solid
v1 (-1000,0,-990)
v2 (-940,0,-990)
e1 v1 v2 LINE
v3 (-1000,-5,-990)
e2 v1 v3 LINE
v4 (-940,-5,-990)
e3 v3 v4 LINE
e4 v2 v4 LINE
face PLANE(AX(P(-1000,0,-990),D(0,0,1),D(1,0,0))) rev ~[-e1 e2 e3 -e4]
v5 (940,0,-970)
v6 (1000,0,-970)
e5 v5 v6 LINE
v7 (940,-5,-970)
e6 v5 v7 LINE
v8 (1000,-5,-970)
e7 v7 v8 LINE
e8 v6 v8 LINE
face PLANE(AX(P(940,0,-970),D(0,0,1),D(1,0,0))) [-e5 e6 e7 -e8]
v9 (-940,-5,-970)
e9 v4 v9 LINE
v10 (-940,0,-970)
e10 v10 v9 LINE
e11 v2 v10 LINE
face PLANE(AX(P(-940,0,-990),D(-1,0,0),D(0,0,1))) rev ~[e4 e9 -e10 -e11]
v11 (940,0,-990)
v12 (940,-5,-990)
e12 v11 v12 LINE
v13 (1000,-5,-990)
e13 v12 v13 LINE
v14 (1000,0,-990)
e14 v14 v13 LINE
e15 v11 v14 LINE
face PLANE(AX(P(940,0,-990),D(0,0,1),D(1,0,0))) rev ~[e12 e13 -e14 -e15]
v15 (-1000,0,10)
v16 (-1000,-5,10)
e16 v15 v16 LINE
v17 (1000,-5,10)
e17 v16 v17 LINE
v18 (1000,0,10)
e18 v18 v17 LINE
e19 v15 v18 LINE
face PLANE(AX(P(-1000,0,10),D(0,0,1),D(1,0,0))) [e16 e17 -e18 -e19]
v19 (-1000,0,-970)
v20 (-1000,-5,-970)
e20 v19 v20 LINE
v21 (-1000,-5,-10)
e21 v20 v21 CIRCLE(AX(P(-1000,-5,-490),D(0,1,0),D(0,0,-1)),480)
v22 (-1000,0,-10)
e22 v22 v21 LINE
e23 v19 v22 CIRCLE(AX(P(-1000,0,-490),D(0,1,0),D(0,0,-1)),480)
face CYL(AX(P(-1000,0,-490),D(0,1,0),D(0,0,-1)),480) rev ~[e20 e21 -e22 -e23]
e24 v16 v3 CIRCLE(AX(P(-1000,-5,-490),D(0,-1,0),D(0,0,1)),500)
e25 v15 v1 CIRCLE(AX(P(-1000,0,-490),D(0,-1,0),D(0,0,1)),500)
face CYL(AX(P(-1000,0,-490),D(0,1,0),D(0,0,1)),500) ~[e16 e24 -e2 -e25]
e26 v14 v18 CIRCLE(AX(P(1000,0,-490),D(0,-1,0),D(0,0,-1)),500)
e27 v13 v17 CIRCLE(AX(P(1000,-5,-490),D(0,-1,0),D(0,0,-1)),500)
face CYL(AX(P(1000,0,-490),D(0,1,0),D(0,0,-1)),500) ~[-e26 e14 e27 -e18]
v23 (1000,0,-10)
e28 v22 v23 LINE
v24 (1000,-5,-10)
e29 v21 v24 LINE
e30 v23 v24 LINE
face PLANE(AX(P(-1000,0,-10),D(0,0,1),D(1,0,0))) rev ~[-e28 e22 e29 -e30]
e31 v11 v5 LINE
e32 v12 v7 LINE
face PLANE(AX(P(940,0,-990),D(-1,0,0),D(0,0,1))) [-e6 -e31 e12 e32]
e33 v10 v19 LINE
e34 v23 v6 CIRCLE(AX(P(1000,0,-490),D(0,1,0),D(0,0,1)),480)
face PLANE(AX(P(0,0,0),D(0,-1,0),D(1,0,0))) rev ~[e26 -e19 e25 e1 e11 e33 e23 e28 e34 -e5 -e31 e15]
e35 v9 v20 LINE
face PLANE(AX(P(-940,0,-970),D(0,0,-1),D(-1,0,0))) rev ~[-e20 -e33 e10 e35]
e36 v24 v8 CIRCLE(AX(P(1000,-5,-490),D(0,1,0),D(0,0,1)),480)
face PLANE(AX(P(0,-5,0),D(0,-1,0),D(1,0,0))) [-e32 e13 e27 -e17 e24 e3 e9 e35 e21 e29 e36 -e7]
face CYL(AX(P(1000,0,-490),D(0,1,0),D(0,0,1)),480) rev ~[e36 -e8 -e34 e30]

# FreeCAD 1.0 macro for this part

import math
import FreeCAD as App
import Part
import Sketcher

V = App.Vector
Q = App.Units.Quantity

doc = App.newDocument("Part")
body = doc.addObject("PartDesign::Body", "Body")

# Sketch on XZ plane
sketch1 = doc.addObject("Sketcher::SketchObject", "Sketch")
body.addObject(sketch1)
sketch1.AttachmentSupport = (doc.XZ_Plane, [""])
sketch1.MapMode = "FlatFace"
sketch1.addGeometry([
    Part.LineSegment(V(-1000, -10, 0), V(1000, -10, 0)),  # 0
    Part.ArcOfCircle(Part.Circle(V(1000, -490, 0), V(0, 0, 1), 480), math.radians(-90), math.radians(90)),  # 1
    Part.LineSegment(V(1000, -970, 0), V(940, -970, 0)),  # 2
    Part.LineSegment(V(940, -970, 0), V(940, -990, 0)),  # 3
    Part.LineSegment(V(940, -990, 0), V(1000, -990, 0)),  # 4
    Part.ArcOfCircle(Part.Circle(V(1000, -490, 0), V(0, 0, 1), 500), math.radians(-90), math.radians(90)),  # 5
    Part.LineSegment(V(1000, 10, 0), V(-1000, 10, 0)),  # 6
    Part.ArcOfCircle(Part.Circle(V(-1000, -490, 0), V(0, 0, 1), 500), math.radians(90), math.radians(270)),  # 7
    Part.LineSegment(V(-1000, -990, 0), V(-940, -990, 0)),  # 8
    Part.LineSegment(V(-940, -990, 0), V(-940, -970, 0)),  # 9
    Part.LineSegment(V(-940, -970, 0), V(-1000, -970, 0)),  # 10
    Part.ArcOfCircle(Part.Circle(V(-1000, -490, 0), V(0, 0, 1), 480), math.radians(90), math.radians(270)),  # 11
], False)
sketch1.addConstraint([
    Sketcher.Constraint("Tangent", 0, 2, 1, 2),
    Sketcher.Constraint("Tangent", 1, 1, 2, 1),
    Sketcher.Constraint("Coincident", 2, 2, 3, 1),
    Sketcher.Constraint("Coincident", 3, 2, 4, 1),
    Sketcher.Constraint("Tangent", 4, 2, 5, 1),
    Sketcher.Constraint("Tangent", 5, 2, 6, 1),
    Sketcher.Constraint("Tangent", 6, 2, 7, 1),
    Sketcher.Constraint("Tangent", 7, 2, 8, 1),
    Sketcher.Constraint("Coincident", 8, 2, 9, 1),
    Sketcher.Constraint("Coincident", 9, 2, 10, 1),
    Sketcher.Constraint("Tangent", 10, 2, 11, 2),
    Sketcher.Constraint("Tangent", 11, 1, 0, 1),
    Sketcher.Constraint("Horizontal", 0),
    Sketcher.Constraint("Horizontal", 2),
    Sketcher.Constraint("Vertical", 3),
    Sketcher.Constraint("Horizontal", 4),
    Sketcher.Constraint("Horizontal", 6),
    Sketcher.Constraint("Horizontal", 8),
    Sketcher.Constraint("Vertical", 9),
    Sketcher.Constraint("Horizontal", 10),
    Sketcher.Constraint("Coincident", 5, 3, 1, 3),
    Sketcher.Constraint("Coincident", 11, 3, 7, 3),
    Sketcher.Constraint("Equal", 5, 7),
    Sketcher.Constraint("Symmetric", 0, 2, 6, 2, -1, 1),
    Sketcher.Constraint("Equal", 4, 8),
    Sketcher.Constraint("Radius", 1, Q("480 mm")),
    Sketcher.Constraint("Radius", 5, Q("500 mm")),
    Sketcher.Constraint("DistanceX", 0, 1, 0, 2, Q("2000 mm")),
    Sketcher.Constraint("DistanceX", 2, 2, 2, 1, Q("60 mm")),
])
pad1 = doc.addObject("PartDesign::Pad", "Pad")
body.addObject(pad1)
pad1.Profile = sketch1
pad1.Length = 5

doc.recompute()
